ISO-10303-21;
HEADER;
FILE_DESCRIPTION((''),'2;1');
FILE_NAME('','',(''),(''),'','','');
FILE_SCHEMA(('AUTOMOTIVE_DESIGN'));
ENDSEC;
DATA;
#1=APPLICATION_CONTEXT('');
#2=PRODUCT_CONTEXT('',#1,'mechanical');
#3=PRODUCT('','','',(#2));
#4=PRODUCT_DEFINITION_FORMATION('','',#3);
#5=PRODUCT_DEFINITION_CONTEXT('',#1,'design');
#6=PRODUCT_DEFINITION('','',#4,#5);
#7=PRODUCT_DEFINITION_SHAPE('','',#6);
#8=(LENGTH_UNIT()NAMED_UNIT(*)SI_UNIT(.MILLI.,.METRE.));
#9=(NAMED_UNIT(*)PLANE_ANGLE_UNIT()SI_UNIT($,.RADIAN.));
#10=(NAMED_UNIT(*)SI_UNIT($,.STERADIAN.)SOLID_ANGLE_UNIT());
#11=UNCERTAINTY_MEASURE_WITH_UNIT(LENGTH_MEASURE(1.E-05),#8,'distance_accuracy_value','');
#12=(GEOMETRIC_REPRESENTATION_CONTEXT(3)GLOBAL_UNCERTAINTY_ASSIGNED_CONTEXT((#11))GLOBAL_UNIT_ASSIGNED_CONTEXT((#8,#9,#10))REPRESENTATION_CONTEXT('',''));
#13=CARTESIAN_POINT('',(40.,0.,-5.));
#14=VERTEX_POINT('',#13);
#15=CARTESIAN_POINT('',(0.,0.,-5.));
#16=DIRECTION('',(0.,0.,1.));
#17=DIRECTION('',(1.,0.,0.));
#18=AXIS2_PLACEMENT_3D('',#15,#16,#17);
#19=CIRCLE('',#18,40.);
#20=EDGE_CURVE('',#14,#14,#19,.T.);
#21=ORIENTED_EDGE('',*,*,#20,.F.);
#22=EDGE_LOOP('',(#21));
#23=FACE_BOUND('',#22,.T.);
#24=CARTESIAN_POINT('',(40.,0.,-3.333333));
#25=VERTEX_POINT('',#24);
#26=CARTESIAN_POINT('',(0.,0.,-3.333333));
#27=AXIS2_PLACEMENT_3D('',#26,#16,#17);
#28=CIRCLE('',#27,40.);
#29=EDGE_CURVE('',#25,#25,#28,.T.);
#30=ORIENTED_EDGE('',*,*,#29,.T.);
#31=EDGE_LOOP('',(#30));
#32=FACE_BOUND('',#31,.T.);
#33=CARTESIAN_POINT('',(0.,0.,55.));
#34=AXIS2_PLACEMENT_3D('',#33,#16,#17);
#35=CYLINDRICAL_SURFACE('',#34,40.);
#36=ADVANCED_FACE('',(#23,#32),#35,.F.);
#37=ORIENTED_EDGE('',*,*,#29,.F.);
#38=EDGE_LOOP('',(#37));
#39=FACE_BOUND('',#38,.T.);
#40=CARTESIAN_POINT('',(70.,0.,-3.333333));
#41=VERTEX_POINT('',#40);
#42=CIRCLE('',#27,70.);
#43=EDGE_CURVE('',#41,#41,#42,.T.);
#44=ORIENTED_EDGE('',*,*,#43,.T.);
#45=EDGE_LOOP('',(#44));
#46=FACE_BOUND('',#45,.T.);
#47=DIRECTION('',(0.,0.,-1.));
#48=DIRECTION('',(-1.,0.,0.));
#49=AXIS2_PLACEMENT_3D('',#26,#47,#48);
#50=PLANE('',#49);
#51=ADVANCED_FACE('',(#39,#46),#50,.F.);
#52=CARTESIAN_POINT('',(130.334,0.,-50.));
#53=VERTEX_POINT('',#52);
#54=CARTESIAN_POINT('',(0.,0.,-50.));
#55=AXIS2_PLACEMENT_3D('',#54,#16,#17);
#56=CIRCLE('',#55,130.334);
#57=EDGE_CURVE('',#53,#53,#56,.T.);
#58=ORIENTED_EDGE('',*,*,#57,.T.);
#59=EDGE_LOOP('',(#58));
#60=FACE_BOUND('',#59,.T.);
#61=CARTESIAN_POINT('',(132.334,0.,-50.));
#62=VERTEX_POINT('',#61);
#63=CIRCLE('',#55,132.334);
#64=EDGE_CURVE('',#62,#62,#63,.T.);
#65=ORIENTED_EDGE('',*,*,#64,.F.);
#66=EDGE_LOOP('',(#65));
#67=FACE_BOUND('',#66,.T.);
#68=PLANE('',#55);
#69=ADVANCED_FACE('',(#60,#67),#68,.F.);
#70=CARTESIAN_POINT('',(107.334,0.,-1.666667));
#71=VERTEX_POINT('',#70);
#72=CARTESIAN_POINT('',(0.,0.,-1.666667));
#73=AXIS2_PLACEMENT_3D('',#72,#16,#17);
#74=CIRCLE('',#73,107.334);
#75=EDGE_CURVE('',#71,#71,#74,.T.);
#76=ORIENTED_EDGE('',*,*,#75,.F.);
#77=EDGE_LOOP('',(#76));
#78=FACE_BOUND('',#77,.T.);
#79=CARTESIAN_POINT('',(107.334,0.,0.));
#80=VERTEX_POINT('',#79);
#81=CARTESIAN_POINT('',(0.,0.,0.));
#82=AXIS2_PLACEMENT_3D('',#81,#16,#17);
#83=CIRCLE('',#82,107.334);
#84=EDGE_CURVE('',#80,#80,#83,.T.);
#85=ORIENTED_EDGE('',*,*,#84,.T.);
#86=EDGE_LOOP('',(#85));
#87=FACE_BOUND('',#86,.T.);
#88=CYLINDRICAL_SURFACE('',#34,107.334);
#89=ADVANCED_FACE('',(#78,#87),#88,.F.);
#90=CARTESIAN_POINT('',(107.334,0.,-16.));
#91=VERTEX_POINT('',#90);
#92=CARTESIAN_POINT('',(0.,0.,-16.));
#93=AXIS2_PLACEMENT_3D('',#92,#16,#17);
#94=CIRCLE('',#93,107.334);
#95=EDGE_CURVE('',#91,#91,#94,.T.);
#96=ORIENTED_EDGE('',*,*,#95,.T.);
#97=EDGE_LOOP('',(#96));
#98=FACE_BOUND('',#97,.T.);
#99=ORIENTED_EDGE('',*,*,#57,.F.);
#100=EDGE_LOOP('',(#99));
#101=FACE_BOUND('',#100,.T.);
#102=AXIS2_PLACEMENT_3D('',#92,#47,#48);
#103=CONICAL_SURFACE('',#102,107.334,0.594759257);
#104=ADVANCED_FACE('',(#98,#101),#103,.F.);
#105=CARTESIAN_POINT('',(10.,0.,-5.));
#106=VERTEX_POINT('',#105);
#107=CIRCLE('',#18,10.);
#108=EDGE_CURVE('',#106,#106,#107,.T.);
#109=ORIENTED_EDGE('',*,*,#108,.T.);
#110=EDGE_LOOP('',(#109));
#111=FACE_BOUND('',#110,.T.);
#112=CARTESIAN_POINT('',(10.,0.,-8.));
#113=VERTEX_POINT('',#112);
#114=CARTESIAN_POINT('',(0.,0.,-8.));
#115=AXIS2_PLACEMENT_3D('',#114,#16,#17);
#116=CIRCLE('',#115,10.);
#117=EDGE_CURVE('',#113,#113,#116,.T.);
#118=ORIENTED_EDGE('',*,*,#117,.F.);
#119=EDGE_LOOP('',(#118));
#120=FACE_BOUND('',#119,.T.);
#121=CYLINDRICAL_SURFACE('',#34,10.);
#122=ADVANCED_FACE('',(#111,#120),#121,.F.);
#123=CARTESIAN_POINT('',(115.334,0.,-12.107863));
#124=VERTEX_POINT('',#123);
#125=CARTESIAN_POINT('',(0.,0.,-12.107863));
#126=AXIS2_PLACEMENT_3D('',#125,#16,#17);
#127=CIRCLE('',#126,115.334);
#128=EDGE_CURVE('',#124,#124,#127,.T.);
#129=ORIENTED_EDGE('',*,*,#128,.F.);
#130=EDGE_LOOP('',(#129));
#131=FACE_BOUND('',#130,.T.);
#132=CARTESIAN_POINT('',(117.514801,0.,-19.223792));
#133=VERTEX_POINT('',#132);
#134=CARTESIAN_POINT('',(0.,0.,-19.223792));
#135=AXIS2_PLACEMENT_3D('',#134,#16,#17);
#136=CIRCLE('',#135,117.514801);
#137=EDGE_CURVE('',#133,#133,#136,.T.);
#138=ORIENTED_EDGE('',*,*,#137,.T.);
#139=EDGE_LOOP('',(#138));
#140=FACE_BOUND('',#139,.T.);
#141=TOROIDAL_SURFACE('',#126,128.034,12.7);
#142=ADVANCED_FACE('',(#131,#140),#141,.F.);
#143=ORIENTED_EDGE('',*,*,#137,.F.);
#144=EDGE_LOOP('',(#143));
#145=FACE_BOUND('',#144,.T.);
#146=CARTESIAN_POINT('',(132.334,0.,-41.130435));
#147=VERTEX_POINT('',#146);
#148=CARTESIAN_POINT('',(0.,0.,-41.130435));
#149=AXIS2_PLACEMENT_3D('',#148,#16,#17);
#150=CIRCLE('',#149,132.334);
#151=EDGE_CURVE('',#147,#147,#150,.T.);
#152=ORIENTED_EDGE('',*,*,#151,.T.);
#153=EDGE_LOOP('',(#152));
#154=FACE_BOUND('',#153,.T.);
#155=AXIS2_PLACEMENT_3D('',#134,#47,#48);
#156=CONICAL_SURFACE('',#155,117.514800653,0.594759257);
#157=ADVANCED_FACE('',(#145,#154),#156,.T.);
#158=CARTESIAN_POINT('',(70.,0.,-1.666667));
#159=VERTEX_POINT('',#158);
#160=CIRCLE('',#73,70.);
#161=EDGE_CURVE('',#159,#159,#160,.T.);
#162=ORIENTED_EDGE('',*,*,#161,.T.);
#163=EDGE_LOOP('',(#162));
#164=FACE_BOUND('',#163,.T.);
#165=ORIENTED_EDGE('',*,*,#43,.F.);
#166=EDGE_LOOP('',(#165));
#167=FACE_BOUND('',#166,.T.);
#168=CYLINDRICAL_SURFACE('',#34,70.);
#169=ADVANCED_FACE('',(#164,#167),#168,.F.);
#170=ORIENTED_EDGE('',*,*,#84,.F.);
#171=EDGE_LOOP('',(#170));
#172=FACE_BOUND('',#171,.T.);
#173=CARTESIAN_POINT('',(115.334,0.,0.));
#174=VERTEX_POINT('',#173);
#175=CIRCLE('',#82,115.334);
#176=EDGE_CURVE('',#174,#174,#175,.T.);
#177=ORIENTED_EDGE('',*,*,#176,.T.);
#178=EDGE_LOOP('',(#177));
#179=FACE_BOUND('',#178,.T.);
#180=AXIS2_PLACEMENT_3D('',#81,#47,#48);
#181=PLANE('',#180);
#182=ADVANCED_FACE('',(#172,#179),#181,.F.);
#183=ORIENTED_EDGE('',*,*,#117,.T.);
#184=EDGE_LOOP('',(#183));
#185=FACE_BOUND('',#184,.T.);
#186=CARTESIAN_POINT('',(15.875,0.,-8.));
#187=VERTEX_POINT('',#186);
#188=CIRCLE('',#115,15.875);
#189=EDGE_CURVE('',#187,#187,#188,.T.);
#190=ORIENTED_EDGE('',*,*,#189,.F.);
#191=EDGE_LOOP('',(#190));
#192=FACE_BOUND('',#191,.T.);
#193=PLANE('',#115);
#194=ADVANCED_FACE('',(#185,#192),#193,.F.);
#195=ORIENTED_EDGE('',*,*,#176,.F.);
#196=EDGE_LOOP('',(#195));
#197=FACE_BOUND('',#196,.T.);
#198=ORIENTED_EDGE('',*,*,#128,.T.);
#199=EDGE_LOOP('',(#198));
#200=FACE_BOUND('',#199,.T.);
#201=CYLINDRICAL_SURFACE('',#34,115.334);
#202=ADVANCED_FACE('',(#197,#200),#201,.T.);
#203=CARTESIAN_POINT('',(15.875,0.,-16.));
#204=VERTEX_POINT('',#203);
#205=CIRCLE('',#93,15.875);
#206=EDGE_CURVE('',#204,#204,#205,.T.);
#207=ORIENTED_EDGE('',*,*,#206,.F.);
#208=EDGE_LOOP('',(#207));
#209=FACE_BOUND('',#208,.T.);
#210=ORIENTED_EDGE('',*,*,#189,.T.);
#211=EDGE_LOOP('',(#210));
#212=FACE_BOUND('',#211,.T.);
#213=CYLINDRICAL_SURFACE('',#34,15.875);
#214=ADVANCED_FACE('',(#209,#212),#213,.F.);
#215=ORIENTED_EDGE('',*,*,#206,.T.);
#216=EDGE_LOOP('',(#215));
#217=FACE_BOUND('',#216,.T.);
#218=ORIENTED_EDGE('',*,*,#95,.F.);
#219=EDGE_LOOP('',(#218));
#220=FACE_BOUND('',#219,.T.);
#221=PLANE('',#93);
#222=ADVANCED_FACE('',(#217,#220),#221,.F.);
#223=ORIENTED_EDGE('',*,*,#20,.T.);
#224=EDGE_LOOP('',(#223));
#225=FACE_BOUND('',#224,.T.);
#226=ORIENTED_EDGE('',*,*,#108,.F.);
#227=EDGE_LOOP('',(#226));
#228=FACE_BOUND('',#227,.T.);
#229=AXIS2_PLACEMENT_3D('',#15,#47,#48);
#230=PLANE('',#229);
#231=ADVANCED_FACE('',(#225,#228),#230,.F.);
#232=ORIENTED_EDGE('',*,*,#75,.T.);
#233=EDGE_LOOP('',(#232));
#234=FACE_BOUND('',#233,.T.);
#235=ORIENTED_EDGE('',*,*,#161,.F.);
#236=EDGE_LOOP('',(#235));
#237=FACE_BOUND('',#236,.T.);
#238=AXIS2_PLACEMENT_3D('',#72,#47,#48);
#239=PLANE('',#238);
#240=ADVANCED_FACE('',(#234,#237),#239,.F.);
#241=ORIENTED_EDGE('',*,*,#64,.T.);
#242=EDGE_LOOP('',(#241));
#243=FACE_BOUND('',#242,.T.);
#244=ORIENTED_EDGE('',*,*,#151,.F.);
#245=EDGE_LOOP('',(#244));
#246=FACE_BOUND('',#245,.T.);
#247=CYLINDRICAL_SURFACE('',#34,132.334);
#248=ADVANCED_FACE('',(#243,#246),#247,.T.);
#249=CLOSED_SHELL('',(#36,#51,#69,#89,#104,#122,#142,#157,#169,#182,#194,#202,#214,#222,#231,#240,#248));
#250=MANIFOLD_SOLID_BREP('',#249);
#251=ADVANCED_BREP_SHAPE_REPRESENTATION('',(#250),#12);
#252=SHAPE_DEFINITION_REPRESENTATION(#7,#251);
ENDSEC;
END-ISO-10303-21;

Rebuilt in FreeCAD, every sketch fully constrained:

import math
import FreeCAD as App
import Part
import Sketcher

doc = App.newDocument("Part")
params = doc.addObject("Spreadsheet::Sheet", "Params")
for row, (alias, value) in enumerate([
    ("sketch1_radius", "12.7 mm"),
    ("sketch1_width", "8 mm"),
    ("sketch1_width2", "2 mm"),
    ("sketch1_width3", "30 mm"),
    ("sketch1_height", "3 mm"),
    ("revolution_angle", "360 deg"),
], start=1):
    params.set(f"A{row}", alias)
    params.set(f"B{row}", "=" + value)
    params.setAlias(f"B{row}", alias)

body = doc.addObject("PartDesign::Body", "Body")

# Sketch on YZ plane
sketch1 = doc.addObject("Sketcher::SketchObject", "Sketch")
body.addObject(sketch1)
sketch1.AttachmentSupport = (doc.YZ_Plane, [""])
sketch1.MapMode = "FlatFace"
sketch1.addGeometry([
    Part.LineSegment(App.Vector(-107.334, 0, 0), App.Vector(-115.334, 0, 0)),  # 0
    Part.LineSegment(App.Vector(-115.334, 0, 0), App.Vector(-115.334, -12.107863, 0)),  # 1
    Part.ArcOfCircle(Part.Circle(App.Vector(-128.034, -12.107863, 0), App.Vector(0, 0, 1), 12.7), math.radians(-34.077195), math.radians(0)),  # 2
    Part.LineSegment(App.Vector(-117.514801, -19.223792, 0), App.Vector(-132.334, -41.130435, 0)),  # 3
    Part.LineSegment(App.Vector(-132.334, -41.130435, 0), App.Vector(-132.334, -50, 0)),  # 4
    Part.LineSegment(App.Vector(-132.334, -50, 0), App.Vector(-130.334, -50, 0)),  # 5
    Part.LineSegment(App.Vector(-130.334, -50, 0), App.Vector(-107.334, -16, 0)),  # 6
    Part.LineSegment(App.Vector(-107.334, -16, 0), App.Vector(-15.875, -16, 0)),  # 7
    Part.LineSegment(App.Vector(-15.875, -16, 0), App.Vector(-15.875, -8, 0)),  # 8
    Part.LineSegment(App.Vector(-15.875, -8, 0), App.Vector(-10, -8, 0)),  # 9
    Part.LineSegment(App.Vector(-10, -8, 0), App.Vector(-10, -5, 0)),  # 10
    Part.LineSegment(App.Vector(-10, -5, 0), App.Vector(-40, -5, 0)),  # 11
    Part.LineSegment(App.Vector(-40, -5, 0), App.Vector(-40, -3.333333, 0)),  # 12
    Part.LineSegment(App.Vector(-40, -3.333333, 0), App.Vector(-70, -3.333333, 0)),  # 13
    Part.LineSegment(App.Vector(-70, -3.333333, 0), App.Vector(-70, -1.666667, 0)),  # 14
    Part.LineSegment(App.Vector(-70, -1.666667, 0), App.Vector(-107.334, -1.666667, 0)),  # 15
    Part.LineSegment(App.Vector(-107.334, -1.666667, 0), App.Vector(-107.334, 0, 0)),  # 16
], False)
sketch1.addConstraint([
    Sketcher.Constraint("Coincident", 0, 2, 1, 1),
    Sketcher.Constraint("Tangent", 1, 2, 2, 2),
    Sketcher.Constraint("Tangent", 2, 1, 3, 1),
    Sketcher.Constraint("Coincident", 3, 2, 4, 1),
    Sketcher.Constraint("Coincident", 4, 2, 5, 1),
    Sketcher.Constraint("Coincident", 5, 2, 6, 1),
    Sketcher.Constraint("Coincident", 6, 2, 7, 1),
    Sketcher.Constraint("Coincident", 7, 2, 8, 1),
    Sketcher.Constraint("Coincident", 8, 2, 9, 1),
    Sketcher.Constraint("Coincident", 9, 2, 10, 1),
    Sketcher.Constraint("Coincident", 10, 2, 11, 1),
    Sketcher.Constraint("Coincident", 11, 2, 12, 1),
    Sketcher.Constraint("Coincident", 12, 2, 13, 1),
    Sketcher.Constraint("Coincident", 13, 2, 14, 1),
    Sketcher.Constraint("Coincident", 14, 2, 15, 1),
    Sketcher.Constraint("Coincident", 15, 2, 16, 1),
    Sketcher.Constraint("Coincident", 16, 2, 0, 1),
    Sketcher.Constraint("Horizontal", 0),
    Sketcher.Constraint("Vertical", 1),
    Sketcher.Constraint("Vertical", 4),
    Sketcher.Constraint("Horizontal", 5),
    Sketcher.Constraint("Horizontal", 7),
    Sketcher.Constraint("Vertical", 8),
    Sketcher.Constraint("Horizontal", 9),
    Sketcher.Constraint("Vertical", 10),
    Sketcher.Constraint("Horizontal", 11),
    Sketcher.Constraint("Vertical", 12),
    Sketcher.Constraint("Horizontal", 13),
    Sketcher.Constraint("Vertical", 14),
    Sketcher.Constraint("Horizontal", 15),
    Sketcher.Constraint("Vertical", 16),
    Sketcher.Constraint("PointOnObject", 0, 2, -1),
    Sketcher.Constraint("Parallel", 3, 6),
    Sketcher.Constraint("Vertical", 6, 2, 15, 2),
    Sketcher.Constraint("Equal", 11, 13),
    Sketcher.Constraint("Equal", 0, 8),
    Sketcher.Constraint("Equal", 12, 14),
    Sketcher.Constraint("Equal", 14, 16),
    Sketcher.Constraint("Radius", 2, 12.7),
    Sketcher.Constraint("DistanceX", 0, 2, 0, 1, 8.0),
    Sketcher.Constraint("DistanceX", 5, 1, 5, 2, 2.0),
    Sketcher.Constraint("DistanceX", 11, 2, 11, 1, 30.0),
    Sketcher.Constraint("DistanceY", 10, 1, 10, 2, 3.0),
    Sketcher.Constraint("DistanceY", 4, 2, -1, 1, 50.0),
    Sketcher.Constraint("DistanceY", 6, 2, -1, 1, 16.0),
    Sketcher.Constraint("DistanceX", 9, 2, -1, 1, 10.0),
    Sketcher.Constraint("DistanceX", 3, 2, 1, 2, 17.0),
    Sketcher.Constraint("DistanceX", 7, 1, 7, 2, 91.459),
    Sketcher.Constraint("DistanceX", 9, 1, 9, 2, 5.875),
    Sketcher.Constraint("DistanceY", 1, 2, 1, 1, 12.107863),
])
sketch1.setExpression("Constraints[38]", "Params.sketch1_radius")
sketch1.setExpression("Constraints[39]", "Params.sketch1_width")
sketch1.setExpression("Constraints[40]", "Params.sketch1_width2")
sketch1.setExpression("Constraints[41]", "Params.sketch1_width3")
sketch1.setExpression("Constraints[42]", "Params.sketch1_height")
revolution = doc.addObject("PartDesign::Revolution", "Revolution")
body.addObject(revolution)
revolution.Profile = sketch1
revolution.ReferenceAxis = (sketch1, ["V_Axis"])
revolution.setExpression("Angle", "Params.revolution_angle")

doc.recompute()
